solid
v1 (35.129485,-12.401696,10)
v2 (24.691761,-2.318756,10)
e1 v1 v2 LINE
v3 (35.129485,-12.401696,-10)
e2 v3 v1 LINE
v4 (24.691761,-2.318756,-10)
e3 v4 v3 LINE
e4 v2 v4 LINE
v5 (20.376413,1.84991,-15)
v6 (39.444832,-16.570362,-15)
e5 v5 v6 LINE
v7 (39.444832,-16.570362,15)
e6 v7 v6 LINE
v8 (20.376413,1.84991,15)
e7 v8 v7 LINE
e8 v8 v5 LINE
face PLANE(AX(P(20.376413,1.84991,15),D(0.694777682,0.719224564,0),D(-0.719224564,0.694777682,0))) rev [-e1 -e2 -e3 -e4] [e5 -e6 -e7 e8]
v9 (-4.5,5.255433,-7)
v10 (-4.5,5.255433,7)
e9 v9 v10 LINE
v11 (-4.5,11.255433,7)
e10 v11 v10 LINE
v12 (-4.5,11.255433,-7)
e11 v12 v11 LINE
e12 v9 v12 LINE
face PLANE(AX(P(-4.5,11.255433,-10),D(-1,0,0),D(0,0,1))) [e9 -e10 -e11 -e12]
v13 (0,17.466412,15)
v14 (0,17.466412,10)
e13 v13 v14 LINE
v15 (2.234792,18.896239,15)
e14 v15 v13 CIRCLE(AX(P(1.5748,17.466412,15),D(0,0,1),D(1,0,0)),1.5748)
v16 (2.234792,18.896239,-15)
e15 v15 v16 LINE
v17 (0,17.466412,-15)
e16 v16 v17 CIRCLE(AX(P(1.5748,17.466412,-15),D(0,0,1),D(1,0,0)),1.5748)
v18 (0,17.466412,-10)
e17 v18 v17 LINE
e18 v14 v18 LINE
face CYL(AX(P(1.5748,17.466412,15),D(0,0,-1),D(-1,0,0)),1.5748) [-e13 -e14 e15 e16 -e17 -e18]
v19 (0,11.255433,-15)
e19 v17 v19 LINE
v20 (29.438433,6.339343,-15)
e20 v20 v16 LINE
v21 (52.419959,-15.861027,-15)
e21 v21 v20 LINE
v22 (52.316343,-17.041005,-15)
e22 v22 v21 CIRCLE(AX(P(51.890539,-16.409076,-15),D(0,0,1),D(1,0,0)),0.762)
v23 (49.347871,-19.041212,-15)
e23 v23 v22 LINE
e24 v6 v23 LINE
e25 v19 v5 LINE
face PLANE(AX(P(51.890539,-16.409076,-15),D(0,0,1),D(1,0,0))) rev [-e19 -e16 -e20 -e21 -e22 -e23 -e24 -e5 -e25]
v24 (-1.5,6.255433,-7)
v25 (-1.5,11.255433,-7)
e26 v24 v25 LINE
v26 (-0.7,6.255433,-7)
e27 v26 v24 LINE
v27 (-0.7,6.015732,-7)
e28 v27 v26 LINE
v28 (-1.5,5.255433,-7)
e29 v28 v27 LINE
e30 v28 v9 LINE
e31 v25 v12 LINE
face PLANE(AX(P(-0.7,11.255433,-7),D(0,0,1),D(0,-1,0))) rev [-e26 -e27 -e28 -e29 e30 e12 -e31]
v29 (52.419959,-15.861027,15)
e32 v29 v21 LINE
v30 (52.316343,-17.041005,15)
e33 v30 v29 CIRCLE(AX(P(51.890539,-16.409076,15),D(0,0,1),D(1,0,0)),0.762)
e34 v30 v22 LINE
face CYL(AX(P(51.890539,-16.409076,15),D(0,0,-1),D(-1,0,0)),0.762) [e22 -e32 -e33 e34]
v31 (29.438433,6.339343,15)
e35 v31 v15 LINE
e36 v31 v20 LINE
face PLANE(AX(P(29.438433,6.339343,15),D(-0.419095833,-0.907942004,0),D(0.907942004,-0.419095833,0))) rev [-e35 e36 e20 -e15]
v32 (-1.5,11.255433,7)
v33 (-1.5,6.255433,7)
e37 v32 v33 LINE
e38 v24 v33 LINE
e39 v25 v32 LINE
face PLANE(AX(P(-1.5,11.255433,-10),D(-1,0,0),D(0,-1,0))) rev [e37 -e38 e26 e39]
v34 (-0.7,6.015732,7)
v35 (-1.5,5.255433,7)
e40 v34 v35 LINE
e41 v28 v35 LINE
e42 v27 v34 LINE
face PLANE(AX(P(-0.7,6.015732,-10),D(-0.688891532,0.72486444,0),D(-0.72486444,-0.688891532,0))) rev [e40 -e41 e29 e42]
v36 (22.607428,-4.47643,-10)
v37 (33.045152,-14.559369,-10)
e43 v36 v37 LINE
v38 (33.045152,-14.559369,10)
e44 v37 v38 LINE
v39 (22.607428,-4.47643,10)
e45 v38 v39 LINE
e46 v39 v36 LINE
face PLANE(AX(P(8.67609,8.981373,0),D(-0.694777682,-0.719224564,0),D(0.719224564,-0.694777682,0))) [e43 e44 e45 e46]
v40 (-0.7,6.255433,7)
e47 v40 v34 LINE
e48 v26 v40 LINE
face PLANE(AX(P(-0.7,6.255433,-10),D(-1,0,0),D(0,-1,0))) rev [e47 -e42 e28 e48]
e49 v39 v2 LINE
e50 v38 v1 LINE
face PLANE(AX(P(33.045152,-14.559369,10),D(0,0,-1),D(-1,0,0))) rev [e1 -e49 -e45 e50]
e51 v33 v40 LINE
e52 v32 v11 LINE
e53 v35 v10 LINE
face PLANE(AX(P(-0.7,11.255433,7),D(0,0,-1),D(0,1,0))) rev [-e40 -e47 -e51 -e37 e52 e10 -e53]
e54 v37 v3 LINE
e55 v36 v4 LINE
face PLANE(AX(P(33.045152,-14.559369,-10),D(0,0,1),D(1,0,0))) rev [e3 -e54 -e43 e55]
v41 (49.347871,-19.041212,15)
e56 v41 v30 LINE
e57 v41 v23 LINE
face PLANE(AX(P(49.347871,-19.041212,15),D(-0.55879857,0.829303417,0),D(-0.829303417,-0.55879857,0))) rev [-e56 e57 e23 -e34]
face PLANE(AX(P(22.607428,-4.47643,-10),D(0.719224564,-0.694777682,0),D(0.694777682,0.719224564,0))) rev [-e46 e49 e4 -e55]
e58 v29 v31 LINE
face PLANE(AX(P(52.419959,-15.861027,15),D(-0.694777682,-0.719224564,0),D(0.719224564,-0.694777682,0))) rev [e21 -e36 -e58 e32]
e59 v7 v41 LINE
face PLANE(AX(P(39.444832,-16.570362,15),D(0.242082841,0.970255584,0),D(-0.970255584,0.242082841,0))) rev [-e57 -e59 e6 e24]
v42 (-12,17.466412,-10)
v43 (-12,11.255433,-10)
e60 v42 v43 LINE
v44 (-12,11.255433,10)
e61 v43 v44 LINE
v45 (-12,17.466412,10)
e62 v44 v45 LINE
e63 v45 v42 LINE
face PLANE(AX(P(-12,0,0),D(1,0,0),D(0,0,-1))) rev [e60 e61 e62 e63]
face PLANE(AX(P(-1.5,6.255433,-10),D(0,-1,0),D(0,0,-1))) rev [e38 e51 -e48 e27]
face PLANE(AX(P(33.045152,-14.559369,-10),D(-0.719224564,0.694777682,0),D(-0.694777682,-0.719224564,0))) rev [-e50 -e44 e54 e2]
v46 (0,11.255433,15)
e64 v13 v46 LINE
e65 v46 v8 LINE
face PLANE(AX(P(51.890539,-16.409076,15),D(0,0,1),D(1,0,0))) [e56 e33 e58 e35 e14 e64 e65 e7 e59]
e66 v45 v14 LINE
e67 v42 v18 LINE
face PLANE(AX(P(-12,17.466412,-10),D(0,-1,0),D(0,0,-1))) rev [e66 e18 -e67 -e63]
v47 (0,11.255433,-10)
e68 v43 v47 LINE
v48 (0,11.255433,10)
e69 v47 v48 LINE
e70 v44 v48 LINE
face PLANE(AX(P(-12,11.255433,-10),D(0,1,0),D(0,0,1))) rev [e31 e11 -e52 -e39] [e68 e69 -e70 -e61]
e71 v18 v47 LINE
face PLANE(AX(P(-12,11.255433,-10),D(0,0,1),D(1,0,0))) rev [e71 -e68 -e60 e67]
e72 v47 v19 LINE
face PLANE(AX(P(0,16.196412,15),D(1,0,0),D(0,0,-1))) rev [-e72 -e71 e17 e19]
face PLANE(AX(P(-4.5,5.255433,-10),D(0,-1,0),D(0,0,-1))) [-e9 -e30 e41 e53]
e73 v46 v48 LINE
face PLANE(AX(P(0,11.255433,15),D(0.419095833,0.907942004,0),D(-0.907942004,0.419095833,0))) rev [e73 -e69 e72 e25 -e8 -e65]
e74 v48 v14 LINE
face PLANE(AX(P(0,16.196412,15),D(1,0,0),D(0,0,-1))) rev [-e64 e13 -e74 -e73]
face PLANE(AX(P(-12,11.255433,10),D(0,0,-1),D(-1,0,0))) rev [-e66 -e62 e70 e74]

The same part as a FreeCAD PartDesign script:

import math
import FreeCAD as App
import Part
import Sketcher
from FreeCAD import Vector
Q = App.Units.Quantity

doc = App.newDocument("Part")
body = doc.addObject("PartDesign::Body", "Body")

# Sketch on XY plane
sketch1 = body.newObject("Sketcher::SketchObject", "Sketch")
sketch1.AttachmentSupport = (doc.getObject("XY_Plane"), [""])
sketch1.MapMode = "FlatFace"
sketch1.addGeometry(Part.LineSegment(Vector(0, 11.3, 0), Vector(20.4, 1.8, 0)), False)
sketch1.addGeometry(Part.LineSegment(Vector(20.4, 1.8, 0), Vector(39.4, -16.6, 0)), False)
sketch1.addGeometry(Part.LineSegment(Vector(39.4, -16.6, 0), Vector(49.3, -19, 0)), False)
sketch1.addGeometry(Part.LineSegment(Vector(49.3, -19, 0), Vector(52.3, -17, 0)), False)
sketch1.addGeometry(Part.ArcOfCircle(Part.Circle(Vector(51.9, -16.4, 0), Vector(0, 0, 1), 0.8), math.radians(-56), math.radians(46)), False)
sketch1.addGeometry(Part.LineSegment(Vector(52.4, -15.9, 0), Vector(29.4, 6.3, 0)), False)
sketch1.addGeometry(Part.LineSegment(Vector(29.4, 6.3, 0), Vector(2.2, 18.9, 0)), False)
sketch1.addGeometry(Part.ArcOfCircle(Part.Circle(Vector(1.6, 17.5, 0), Vector(0, 0, 1), 1.6), math.radians(65), math.radians(180)), False)
sketch1.addGeometry(Part.LineSegment(Vector(0, 17.5, 0), Vector(0, 11.3, 0)), False)
sketch1.addConstraint(Sketcher.Constraint("Coincident", 0, 2, 1, 1))
sketch1.addConstraint(Sketcher.Constraint("Coincident", 1, 2, 2, 1))
sketch1.addConstraint(Sketcher.Constraint("Coincident", 2, 2, 3, 1))
sketch1.addConstraint(Sketcher.Constraint("Tangent", 3, 2, 4, 1))
sketch1.addConstraint(Sketcher.Constraint("Tangent", 4, 2, 5, 1))
sketch1.addConstraint(Sketcher.Constraint("Coincident", 5, 2, 6, 1))
sketch1.addConstraint(Sketcher.Constraint("Tangent", 6, 2, 7, 1))
sketch1.addConstraint(Sketcher.Constraint("Tangent", 7, 2, 8, 1))
sketch1.addConstraint(Sketcher.Constraint("Coincident", 8, 2, 0, 1))
sketch1.addConstraint(Sketcher.Constraint("Vertical", 8))
sketch1.addConstraint(Sketcher.Constraint("PointOnObject", 7, 2, -2))
sketch1.addConstraint(Sketcher.Constraint("Parallel", 1, 5))
sketch1.addConstraint(Sketcher.Constraint("Parallel", 0, 6))
sketch1.addConstraint(Sketcher.Constraint("Radius", 4, Q("0.762 mm")))
sketch1.addConstraint(Sketcher.Constraint("Radius", 7, Q("1.5748 mm")))
sketch1.addConstraint(Sketcher.Constraint("Distance", 5, Q("31.9532 mm")))
sketch1.addConstraint(Sketcher.Constraint("DistanceY", 8, 2, 8, 1, Q("6.210978 mm")))
sketch1.addConstraint(Sketcher.Constraint("DistanceY", 0, 2, 7, 3, Q("15.616502 mm")))
sketch1.addConstraint(Sketcher.Constraint("DistanceX", 5, 2, 1, 2, Q("10.006399 mm")))
sketch1.addConstraint(Sketcher.Constraint("DistanceY", 1, 2, 6, 2, Q("35.4666 mm")))
sketch1.addConstraint(Sketcher.Constraint("Distance", 1, Q("26.512469 mm")))
sketch1.addConstraint(Sketcher.Constraint("Distance", 2, Q("10.206629 mm")))
sketch1.addConstraint(Sketcher.Constraint("Distance", 6, Q("29.961871 mm")))
sketch1.addConstraint(Sketcher.Constraint("DistanceY", -1, 1, 7, 3, Q("17.466412 mm")))
sketch1.addConstraint(Sketcher.Constraint("DistanceX", -1, 1, 2, 2, Q("49.347871 mm")))
pad1 = body.newObject("PartDesign::Pad", "Pad")
pad1.Profile = sketch1
pad1.Type = "TwoLengths"
pad1.Length = 15
pad1.Length2 = 15

# Sketch on YZ plane
sketch2 = body.newObject("Sketcher::SketchObject", "Sketch001")
sketch2.AttachmentSupport = (doc.getObject("YZ_Plane"), [""])
sketch2.MapMode = "FlatFace"
sketch2.addGeometry(Part.LineSegment(Vector(17, -10, 0), Vector(11, -10, 0)), False)
sketch2.addGeometry(Part.LineSegment(Vector(11, -10, 0), Vector(11, 10, 0)), False)
sketch2.addGeometry(Part.LineSegment(Vector(11, 10, 0), Vector(17, 10, 0)), False)
sketch2.addGeometry(Part.LineSegment(Vector(17, 10, 0), Vector(17, -10, 0)), False)
sketch2.addConstraint(Sketcher.Constraint("Coincident", 0, 2, 1, 1))
sketch2.addConstraint(Sketcher.Constraint("Coincident", 1, 2, 2, 1))
sketch2.addConstraint(Sketcher.Constraint("Coincident", 2, 2, 3, 1))
sketch2.addConstraint(Sketcher.Constraint("Coincident", 3, 2, 0, 1))
sketch2.addConstraint(Sketcher.Constraint("Horizontal", 0))
sketch2.addConstraint(Sketcher.Constraint("Vertical", 1))
sketch2.addConstraint(Sketcher.Constraint("Horizontal", 2))
sketch2.addConstraint(Sketcher.Constraint("Vertical", 3))
sketch2.addConstraint(Sketcher.Constraint("DistanceY", 1, 1, 1, 2, Q("20 mm")))
sketch2.addConstraint(Sketcher.Constraint("DistanceY", 0, 2, -1, 1, Q("10 mm")))
sketch2.addConstraint(Sketcher.Constraint("DistanceX", 0, 2, 0, 1, Q("6.210978 mm")))
sketch2.addConstraint(Sketcher.Constraint("DistanceX", -1, 1, 2, 2, Q("17.466412 mm")))
pad2 = body.newObject("PartDesign::Pad", "Pad001")
pad2.Profile = sketch2
pad2.Length = 12
pad2.Reversed = True

# Sketch on XY plane
sketch3 = body.newObject("Sketcher::SketchObject", "Sketch002")
sketch3.AttachmentSupport = (doc.getObject("XY_Plane"), [""])
sketch3.MapMode = "FlatFace"
sketch3.AttachmentOffset = App.Placement(Vector(0, 0, -10), App.Rotation())
sketch3.addGeometry(Part.LineSegment(Vector(-1.5, 11.26, 0), Vector(-4.5, 11.26, 0)), False)
sketch3.addGeometry(Part.LineSegment(Vector(-4.5, 11.26, 0), Vector(-4.5, 5.26, 0)), False)
sketch3.addGeometry(Part.LineSegment(Vector(-4.5, 5.26, 0), Vector(-1.5, 5.26, 0)), False)
sketch3.addGeometry(Part.LineSegment(Vector(-1.5, 5.26, 0), Vector(-0.7, 6.02, 0)), False)
sketch3.addGeometry(Part.LineSegment(Vector(-0.7, 6.02, 0), Vector(-0.7, 6.26, 0)), False)
sketch3.addGeometry(Part.LineSegment(Vector(-0.7, 6.26, 0), Vector(-1.5, 6.26, 0)), False)
sketch3.addGeometry(Part.LineSegment(Vector(-1.5, 6.26, 0), Vector(-1.5, 11.26, 0)), False)
sketch3.addConstraint(Sketcher.Constraint("Coincident", 0, 2, 1, 1))
sketch3.addConstraint(Sketcher.Constraint("Coincident", 1, 2, 2, 1))
sketch3.addConstraint(Sketcher.Constraint("Coincident", 2, 2, 3, 1))
sketch3.addConstraint(Sketcher.Constraint("Coincident", 3, 2, 4, 1))
sketch3.addConstraint(Sketcher.Constraint("Coincident", 4, 2, 5, 1))
sketch3.addConstraint(Sketcher.Constraint("Coincident", 5, 2, 6, 1))
sketch3.addConstraint(Sketcher.Constraint("Coincident", 6, 2, 0, 1))
sketch3.addConstraint(Sketcher.Constraint("Horizontal", 0))
sketch3.addConstraint(Sketcher.Constraint("Vertical", 1))
sketch3.addConstraint(Sketcher.Constraint("Horizontal", 2))
sketch3.addConstraint(Sketcher.Constraint("Vertical", 4))
sketch3.addConstraint(Sketcher.Constraint("Horizontal", 5))
sketch3.addConstraint(Sketcher.Constraint("Vertical", 6))
sketch3.addConstraint(Sketcher.Constraint("Vertical", 2, 2, 5, 2))
sketch3.addConstraint(Sketcher.Constraint("DistanceX", 0, 2, 0, 1, Q("3 mm")))
sketch3.addConstraint(Sketcher.Constraint("DistanceY", 1, 2, 1, 1, Q("6 mm")))
sketch3.addConstraint(Sketcher.Constraint("DistanceY", 6, 1, 6, 2, Q("5 mm")))
sketch3.addConstraint(Sketcher.Constraint("DistanceX", 5, 2, 5, 1, Q("0.8 mm")))
sketch3.addConstraint(Sketcher.Constraint("DistanceX", 0, 2, -1, 1, Q("4.5 mm")))
sketch3.addConstraint(Sketcher.Constraint("DistanceY", 4, 1, 4, 2, Q("0.239702 mm")))
sketch3.addConstraint(Sketcher.Constraint("DistanceY", -1, 1, 3, 2, Q("6.015732 mm")))
pad3 = body.newObject("PartDesign::Pad", "Pad002")
pad3.Profile = sketch3
pad3.Length = 20

# Sketch on YZ plane
sketch4 = body.newObject("Sketcher::SketchObject", "Sketch003")
sketch4.AttachmentSupport = (doc.getObject("YZ_Plane"), [""])
sketch4.MapMode = "FlatFace"
sketch4.AttachmentOffset = App.Placement(Vector(0, 0, -0.7), App.Rotation())
sketch4.addGeometry(Part.LineSegment(Vector(11.3, -10, 0), Vector(5.3, -10, 0)), False)
sketch4.addGeometry(Part.LineSegment(Vector(5.3, -10, 0), Vector(5.3, -7, 0)), False)
sketch4.addGeometry(Part.LineSegment(Vector(5.3, -7, 0), Vector(11.3, -7, 0)), False)
sketch4.addGeometry(Part.LineSegment(Vector(11.3, -7, 0), Vector(11.3, -10, 0)), False)
sketch4.addGeometry(Part.LineSegment(Vector(11.3, 7, 0), Vector(5.3, 7, 0)), False)
sketch4.addGeometry(Part.LineSegment(Vector(5.3, 7, 0), Vector(5.3, 10, 0)), False)
sketch4.addGeometry(Part.LineSegment(Vector(5.3, 10, 0), Vector(11.3, 10, 0)), False)
sketch4.addGeometry(Part.LineSegment(Vector(11.3, 10, 0), Vector(11.3, 7, 0)), False)
sketch4.addConstraint(Sketcher.Constraint("Coincident", 0, 2, 1, 1))
sketch4.addConstraint(Sketcher.Constraint("Coincident", 1, 2, 2, 1))
sketch4.addConstraint(Sketcher.Constraint("Coincident", 2, 2, 3, 1))
sketch4.addConstraint(Sketcher.Constraint("Coincident", 3, 2, 0, 1))
sketch4.addConstraint(Sketcher.Constraint("Coincident", 4, 2, 5, 1))
sketch4.addConstraint(Sketcher.Constraint("Coincident", 5, 2, 6, 1))
sketch4.addConstraint(Sketcher.Constraint("Coincident", 6, 2, 7, 1))
sketch4.addConstraint(Sketcher.Constraint("Coincident", 7, 2, 4, 1))
sketch4.addConstraint(Sketcher.Constraint("Horizontal", 0))
sketch4.addConstraint(Sketcher.Constraint("Vertical", 1))
sketch4.addConstraint(Sketcher.Constraint("Horizontal", 2))
sketch4.addConstraint(Sketcher.Constraint("Vertical", 3))
sketch4.addConstraint(Sketcher.Constraint("Horizontal", 4))
sketch4.addConstraint(Sketcher.Constraint("Vertical", 5))
sketch4.addConstraint(Sketcher.Constraint("Horizontal", 6))
sketch4.addConstraint(Sketcher.Constraint("Vertical", 7))
sketch4.addConstraint(Sketcher.Constraint("Symmetric", 1, 2, 4, 2, -1))
sketch4.addConstraint(Sketcher.Constraint("Symmetric", 3, 2, 6, 2, -1))
sketch4.addConstraint(Sketcher.Constraint("DistanceX", 0, 2, 0, 1, Q("6 mm")))
sketch4.addConstraint(Sketcher.Constraint("DistanceY", 1, 1, 1, 2, Q("3 mm")))
sketch4.addConstraint(Sketcher.Constraint("DistanceY", 0, 2, -1, 1, Q("10 mm")))
sketch4.addConstraint(Sketcher.Constraint("DistanceX", -1, 1, 0, 2, Q("5.255433 mm")))
pocket1 = body.newObject("PartDesign::Pocket", "Pocket")
pocket1.Profile = sketch4
pocket1.Length = 3.8

# Sketch on an angled plane
sketch5 = body.newObject("Sketcher::SketchObject", "Sketch004")
sketch5.Placement = App.Placement(Vector(10.760423, 11.139046, 0), App.Rotation(Vector(0.719224564, -0.694777682, 0), Vector(0, 0, 1.000000001), Vector(-0.694777682, -0.719224564, 0), "ZXY"))
sketch5.addGeometry(Part.LineSegment(Vector(19, 10, 0), Vector(19, -10, 0)), False)
sketch5.addGeometry(Part.LineSegment(Vector(19, -10, 0), Vector(34, -10, 0)), False)
sketch5.addGeometry(Part.LineSegment(Vector(34, -10, 0), Vector(34, 10, 0)), False)
sketch5.addGeometry(Part.LineSegment(Vector(34, 10, 0), Vector(19, 10, 0)), False)
sketch5.addConstraint(Sketcher.Constraint("Coincident", 0, 2, 1, 1))
sketch5.addConstraint(Sketcher.Constraint("Coincident", 1, 2, 2, 1))
sketch5.addConstraint(Sketcher.Constraint("Coincident", 2, 2, 3, 1))
sketch5.addConstraint(Sketcher.Constraint("Coincident", 3, 2, 0, 1))
sketch5.addConstraint(Sketcher.Constraint("Vertical", 0))
sketch5.addConstraint(Sketcher.Constraint("Horizontal", 1))
sketch5.addConstraint(Sketcher.Constraint("Vertical", 2))
sketch5.addConstraint(Sketcher.Constraint("Horizontal", 3))
sketch5.addConstraint(Sketcher.Constraint("DistanceY", 0, 2, 0, 1, Q("20 mm")))
sketch5.addConstraint(Sketcher.Constraint("DistanceY", 0, 2, -1, 1, Q("10 mm")))
sketch5.addConstraint(Sketcher.Constraint("DistanceX", 1, 1, 1, 2, Q("14.512469 mm")))
sketch5.addConstraint(Sketcher.Constraint("DistanceX", -1, 1, 0, 2, Q("19.369941 mm")))
pad4 = body.newObject("PartDesign::Pad", "Pad003")
pad4.Profile = sketch5
pad4.Length = 3

doc.recompute()
